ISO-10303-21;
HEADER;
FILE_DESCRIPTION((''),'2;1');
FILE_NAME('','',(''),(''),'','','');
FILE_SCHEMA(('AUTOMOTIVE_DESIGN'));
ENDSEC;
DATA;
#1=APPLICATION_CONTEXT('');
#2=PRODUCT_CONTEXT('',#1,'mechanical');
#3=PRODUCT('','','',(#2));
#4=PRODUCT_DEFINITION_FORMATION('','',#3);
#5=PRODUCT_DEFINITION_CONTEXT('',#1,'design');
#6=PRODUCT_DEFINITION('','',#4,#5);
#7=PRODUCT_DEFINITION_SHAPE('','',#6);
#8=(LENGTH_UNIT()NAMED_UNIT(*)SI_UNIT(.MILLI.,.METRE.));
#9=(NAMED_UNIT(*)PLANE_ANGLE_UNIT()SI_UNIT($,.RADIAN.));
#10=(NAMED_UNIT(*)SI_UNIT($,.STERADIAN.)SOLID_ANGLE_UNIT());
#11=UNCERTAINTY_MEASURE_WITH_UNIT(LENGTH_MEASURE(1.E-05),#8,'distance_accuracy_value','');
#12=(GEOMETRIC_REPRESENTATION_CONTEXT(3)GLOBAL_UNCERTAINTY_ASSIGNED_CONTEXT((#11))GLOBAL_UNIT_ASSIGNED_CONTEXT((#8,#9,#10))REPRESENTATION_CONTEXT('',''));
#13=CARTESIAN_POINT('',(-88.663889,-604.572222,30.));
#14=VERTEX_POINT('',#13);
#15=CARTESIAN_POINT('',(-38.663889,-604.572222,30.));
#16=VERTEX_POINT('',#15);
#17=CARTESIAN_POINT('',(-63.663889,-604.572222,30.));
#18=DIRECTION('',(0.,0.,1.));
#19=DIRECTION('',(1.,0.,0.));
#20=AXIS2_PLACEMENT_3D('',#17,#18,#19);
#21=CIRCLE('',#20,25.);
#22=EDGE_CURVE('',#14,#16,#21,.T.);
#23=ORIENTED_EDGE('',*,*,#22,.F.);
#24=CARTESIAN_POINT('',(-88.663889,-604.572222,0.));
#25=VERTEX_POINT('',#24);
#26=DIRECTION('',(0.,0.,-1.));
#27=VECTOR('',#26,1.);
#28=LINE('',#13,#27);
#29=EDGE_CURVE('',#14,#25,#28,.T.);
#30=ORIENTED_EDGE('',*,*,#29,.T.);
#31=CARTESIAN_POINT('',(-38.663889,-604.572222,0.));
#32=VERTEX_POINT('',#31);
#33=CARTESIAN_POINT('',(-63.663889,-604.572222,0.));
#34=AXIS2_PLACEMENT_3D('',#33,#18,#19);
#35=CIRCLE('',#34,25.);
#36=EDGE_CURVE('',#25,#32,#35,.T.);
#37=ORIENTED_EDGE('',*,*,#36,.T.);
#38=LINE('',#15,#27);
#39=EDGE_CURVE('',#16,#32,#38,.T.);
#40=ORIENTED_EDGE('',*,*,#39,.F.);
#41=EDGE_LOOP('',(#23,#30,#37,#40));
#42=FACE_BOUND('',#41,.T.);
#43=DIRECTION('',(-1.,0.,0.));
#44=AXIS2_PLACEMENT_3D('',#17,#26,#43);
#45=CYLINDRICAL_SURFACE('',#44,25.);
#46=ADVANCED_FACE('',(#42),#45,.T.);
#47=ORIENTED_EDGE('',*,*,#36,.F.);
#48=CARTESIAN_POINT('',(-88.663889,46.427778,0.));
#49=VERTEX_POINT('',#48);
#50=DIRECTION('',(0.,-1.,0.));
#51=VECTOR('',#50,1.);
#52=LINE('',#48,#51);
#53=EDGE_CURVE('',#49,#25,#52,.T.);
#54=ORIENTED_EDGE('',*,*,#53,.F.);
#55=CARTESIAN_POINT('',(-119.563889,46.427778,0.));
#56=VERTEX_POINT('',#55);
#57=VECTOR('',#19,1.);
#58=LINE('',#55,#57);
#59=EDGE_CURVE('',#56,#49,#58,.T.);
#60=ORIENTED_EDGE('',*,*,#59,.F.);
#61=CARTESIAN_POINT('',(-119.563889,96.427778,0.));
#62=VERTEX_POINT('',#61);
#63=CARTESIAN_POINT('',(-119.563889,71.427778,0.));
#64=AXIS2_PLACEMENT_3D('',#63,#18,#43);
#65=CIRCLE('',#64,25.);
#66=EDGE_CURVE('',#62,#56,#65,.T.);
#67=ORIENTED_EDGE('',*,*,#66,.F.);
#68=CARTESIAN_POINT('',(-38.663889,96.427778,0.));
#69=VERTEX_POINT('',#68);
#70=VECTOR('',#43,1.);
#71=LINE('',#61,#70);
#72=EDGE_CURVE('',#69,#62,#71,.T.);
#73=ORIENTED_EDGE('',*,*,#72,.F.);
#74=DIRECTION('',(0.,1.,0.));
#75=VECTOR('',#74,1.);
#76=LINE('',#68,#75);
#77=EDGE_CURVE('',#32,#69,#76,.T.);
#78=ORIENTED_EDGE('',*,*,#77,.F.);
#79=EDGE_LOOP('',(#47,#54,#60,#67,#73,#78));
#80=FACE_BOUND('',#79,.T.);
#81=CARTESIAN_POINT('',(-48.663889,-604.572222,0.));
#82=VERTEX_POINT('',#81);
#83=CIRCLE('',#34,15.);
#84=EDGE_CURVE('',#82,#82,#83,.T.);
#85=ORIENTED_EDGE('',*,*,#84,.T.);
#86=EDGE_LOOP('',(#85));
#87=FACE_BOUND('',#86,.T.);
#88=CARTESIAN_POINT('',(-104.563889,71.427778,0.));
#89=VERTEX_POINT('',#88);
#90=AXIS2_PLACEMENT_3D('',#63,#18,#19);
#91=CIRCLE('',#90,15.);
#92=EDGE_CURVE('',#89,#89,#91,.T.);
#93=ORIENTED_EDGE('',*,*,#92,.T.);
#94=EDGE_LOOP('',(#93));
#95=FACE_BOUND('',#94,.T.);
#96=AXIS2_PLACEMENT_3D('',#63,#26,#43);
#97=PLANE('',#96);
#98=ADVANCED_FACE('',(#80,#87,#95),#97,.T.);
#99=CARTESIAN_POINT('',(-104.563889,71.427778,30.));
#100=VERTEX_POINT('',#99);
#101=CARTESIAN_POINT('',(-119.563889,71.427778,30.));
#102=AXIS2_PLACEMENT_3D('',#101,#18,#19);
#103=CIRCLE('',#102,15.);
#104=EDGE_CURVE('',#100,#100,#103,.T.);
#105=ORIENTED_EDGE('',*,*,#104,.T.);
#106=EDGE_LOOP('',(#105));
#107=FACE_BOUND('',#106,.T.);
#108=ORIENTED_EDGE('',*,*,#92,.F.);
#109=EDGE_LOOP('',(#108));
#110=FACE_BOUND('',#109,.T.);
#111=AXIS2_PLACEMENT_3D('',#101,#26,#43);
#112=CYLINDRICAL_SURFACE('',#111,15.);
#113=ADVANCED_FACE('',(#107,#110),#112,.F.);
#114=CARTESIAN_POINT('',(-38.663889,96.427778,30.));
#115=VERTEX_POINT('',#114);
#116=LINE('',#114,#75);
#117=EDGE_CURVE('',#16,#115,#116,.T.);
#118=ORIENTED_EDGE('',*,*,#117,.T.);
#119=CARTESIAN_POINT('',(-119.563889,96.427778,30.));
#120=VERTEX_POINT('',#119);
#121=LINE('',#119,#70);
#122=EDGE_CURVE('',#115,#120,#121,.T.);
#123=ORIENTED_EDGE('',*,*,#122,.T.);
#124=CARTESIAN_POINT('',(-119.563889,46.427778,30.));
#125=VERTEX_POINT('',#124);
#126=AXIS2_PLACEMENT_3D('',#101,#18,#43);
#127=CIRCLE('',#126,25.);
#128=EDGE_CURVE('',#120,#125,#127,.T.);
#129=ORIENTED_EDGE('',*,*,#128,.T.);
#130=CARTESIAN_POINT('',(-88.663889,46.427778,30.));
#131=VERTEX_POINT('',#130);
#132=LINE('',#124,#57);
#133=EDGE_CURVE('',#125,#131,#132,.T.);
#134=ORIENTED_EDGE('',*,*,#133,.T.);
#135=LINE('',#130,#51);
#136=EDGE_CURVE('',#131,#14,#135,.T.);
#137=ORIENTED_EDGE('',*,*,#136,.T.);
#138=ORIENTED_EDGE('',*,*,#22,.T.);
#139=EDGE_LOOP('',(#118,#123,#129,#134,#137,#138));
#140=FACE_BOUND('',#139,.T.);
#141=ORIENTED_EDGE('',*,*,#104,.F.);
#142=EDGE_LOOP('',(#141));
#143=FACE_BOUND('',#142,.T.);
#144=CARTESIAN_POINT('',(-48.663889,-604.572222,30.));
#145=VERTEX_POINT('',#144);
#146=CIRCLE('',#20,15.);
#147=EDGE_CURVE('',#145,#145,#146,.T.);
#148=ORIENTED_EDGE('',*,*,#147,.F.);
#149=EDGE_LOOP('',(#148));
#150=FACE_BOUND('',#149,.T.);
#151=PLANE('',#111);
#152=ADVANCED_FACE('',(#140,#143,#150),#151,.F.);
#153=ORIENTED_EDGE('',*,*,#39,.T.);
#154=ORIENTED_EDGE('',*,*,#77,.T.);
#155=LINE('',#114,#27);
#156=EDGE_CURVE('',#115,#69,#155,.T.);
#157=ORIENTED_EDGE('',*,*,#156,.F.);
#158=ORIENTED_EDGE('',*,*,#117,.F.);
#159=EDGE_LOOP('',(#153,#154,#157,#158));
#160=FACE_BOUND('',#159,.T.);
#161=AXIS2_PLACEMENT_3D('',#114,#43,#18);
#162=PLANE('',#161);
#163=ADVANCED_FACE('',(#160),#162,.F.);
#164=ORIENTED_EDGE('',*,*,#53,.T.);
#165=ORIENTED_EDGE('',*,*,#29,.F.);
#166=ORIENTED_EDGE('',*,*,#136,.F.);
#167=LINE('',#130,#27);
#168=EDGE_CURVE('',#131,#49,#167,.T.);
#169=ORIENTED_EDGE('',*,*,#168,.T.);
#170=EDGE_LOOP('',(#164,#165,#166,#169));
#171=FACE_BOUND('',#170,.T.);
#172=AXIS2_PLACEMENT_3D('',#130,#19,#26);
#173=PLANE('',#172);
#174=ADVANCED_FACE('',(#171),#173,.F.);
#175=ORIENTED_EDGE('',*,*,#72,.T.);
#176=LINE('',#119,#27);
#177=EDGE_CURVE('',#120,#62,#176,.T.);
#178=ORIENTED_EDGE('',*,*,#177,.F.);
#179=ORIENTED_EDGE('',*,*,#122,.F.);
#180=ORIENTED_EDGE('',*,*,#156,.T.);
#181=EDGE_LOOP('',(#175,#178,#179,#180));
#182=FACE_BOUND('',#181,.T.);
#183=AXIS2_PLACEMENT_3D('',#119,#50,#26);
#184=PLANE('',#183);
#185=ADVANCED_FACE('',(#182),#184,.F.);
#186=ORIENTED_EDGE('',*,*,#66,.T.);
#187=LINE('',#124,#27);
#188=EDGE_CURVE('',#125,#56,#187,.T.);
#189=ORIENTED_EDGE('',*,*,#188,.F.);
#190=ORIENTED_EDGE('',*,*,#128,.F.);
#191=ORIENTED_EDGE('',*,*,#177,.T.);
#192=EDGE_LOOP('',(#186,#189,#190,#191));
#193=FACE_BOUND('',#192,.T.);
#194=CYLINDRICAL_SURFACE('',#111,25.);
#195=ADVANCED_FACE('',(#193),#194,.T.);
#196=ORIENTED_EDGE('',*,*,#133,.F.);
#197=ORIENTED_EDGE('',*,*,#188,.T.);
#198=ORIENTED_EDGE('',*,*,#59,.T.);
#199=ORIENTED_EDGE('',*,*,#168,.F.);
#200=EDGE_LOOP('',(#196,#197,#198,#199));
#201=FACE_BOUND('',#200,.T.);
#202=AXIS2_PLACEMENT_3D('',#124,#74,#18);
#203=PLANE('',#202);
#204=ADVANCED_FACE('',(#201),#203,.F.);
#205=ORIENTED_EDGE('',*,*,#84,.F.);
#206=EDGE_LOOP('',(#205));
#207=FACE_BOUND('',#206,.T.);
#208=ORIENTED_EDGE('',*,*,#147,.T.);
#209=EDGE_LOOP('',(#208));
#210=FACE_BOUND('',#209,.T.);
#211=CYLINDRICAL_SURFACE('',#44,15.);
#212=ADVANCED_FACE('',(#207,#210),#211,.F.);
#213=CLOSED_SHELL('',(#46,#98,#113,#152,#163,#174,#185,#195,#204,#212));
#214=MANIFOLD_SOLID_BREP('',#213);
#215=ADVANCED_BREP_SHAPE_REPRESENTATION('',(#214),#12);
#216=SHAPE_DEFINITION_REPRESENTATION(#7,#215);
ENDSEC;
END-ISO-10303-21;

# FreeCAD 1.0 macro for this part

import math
import FreeCAD as App
import Part
import Sketcher

V = App.Vector
Q = App.Units.Quantity

doc = App.newDocument("Part")
body = doc.addObject("PartDesign::Body", "Body")

# Sketch on XY plane
sketch1 = body.newObject("Sketcher::SketchObject", "Sketch")
sketch1.AttachmentSupport = (doc.getObject("XY_Plane"), [""])
sketch1.MapMode = "FlatFace"
sketch1.addGeometry([
    Part.LineSegment(V(-120, 46, 0), V(-89, 46, 0)),  # 0
    Part.LineSegment(V(-89, 46, 0), V(-89, -605, 0)),  # 1
    Part.ArcOfCircle(Part.Circle(V(-64, -605, 0), V(0, 0, 1), 25), math.radians(180), math.radians(360)),  # 2
    Part.LineSegment(V(-39, -605, 0), V(-39, 96, 0)),  # 3
    Part.LineSegment(V(-39, 96, 0), V(-120, 96, 0)),  # 4
    Part.ArcOfCircle(Part.Circle(V(-120, 71, 0), V(0, 0, 1), 25), math.radians(90), math.radians(270)),  # 5
    Part.Circle(V(-64, -605, 0), V(0, 0, 1), 15),  # 6
    Part.Circle(V(-120, 71, 0), V(0, 0, 1), 15),  # 7
], False)
sketch1.addConstraint([
    Sketcher.Constraint("Coincident", 0, 2, 1, 1),
    Sketcher.Constraint("Tangent", 1, 2, 2, 1),
    Sketcher.Constraint("Tangent", 2, 2, 3, 1),
    Sketcher.Constraint("Coincident", 3, 2, 4, 1),
    Sketcher.Constraint("Tangent", 4, 2, 5, 1),
    Sketcher.Constraint("Tangent", 5, 2, 0, 1),
    Sketcher.Constraint("Horizontal", 0),
    Sketcher.Constraint("Vertical", 1),
    Sketcher.Constraint("Vertical", 3),
    Sketcher.Constraint("Horizontal", 4),
    Sketcher.Constraint("Coincident", 6, 3, 2, 3),
    Sketcher.Constraint("Coincident", 7, 3, 5, 3),
    Sketcher.Constraint("Equal", 2, 5),
    Sketcher.Constraint("Equal", 6, 7),
    Sketcher.Constraint("Diameter", 6, Q("30 mm")),
    Sketcher.Constraint("Radius", 2, Q("25 mm")),
    Sketcher.Constraint("DistanceY", 1, 2, 1, 1, Q("651 mm")),
    Sketcher.Constraint("DistanceX", 0, 1, 0, 2, Q("30.9 mm")),
    Sketcher.Constraint("DistanceX", 2, 3, -1, 1, Q("63.663889 mm")),
    Sketcher.Constraint("DistanceY", 2, 3, -1, 1, Q("604.572222 mm")),
])
pad1 = body.newObject("PartDesign::Pad", "Pad")
pad1.Profile = sketch1
pad1.Length = 30

doc.recompute()
